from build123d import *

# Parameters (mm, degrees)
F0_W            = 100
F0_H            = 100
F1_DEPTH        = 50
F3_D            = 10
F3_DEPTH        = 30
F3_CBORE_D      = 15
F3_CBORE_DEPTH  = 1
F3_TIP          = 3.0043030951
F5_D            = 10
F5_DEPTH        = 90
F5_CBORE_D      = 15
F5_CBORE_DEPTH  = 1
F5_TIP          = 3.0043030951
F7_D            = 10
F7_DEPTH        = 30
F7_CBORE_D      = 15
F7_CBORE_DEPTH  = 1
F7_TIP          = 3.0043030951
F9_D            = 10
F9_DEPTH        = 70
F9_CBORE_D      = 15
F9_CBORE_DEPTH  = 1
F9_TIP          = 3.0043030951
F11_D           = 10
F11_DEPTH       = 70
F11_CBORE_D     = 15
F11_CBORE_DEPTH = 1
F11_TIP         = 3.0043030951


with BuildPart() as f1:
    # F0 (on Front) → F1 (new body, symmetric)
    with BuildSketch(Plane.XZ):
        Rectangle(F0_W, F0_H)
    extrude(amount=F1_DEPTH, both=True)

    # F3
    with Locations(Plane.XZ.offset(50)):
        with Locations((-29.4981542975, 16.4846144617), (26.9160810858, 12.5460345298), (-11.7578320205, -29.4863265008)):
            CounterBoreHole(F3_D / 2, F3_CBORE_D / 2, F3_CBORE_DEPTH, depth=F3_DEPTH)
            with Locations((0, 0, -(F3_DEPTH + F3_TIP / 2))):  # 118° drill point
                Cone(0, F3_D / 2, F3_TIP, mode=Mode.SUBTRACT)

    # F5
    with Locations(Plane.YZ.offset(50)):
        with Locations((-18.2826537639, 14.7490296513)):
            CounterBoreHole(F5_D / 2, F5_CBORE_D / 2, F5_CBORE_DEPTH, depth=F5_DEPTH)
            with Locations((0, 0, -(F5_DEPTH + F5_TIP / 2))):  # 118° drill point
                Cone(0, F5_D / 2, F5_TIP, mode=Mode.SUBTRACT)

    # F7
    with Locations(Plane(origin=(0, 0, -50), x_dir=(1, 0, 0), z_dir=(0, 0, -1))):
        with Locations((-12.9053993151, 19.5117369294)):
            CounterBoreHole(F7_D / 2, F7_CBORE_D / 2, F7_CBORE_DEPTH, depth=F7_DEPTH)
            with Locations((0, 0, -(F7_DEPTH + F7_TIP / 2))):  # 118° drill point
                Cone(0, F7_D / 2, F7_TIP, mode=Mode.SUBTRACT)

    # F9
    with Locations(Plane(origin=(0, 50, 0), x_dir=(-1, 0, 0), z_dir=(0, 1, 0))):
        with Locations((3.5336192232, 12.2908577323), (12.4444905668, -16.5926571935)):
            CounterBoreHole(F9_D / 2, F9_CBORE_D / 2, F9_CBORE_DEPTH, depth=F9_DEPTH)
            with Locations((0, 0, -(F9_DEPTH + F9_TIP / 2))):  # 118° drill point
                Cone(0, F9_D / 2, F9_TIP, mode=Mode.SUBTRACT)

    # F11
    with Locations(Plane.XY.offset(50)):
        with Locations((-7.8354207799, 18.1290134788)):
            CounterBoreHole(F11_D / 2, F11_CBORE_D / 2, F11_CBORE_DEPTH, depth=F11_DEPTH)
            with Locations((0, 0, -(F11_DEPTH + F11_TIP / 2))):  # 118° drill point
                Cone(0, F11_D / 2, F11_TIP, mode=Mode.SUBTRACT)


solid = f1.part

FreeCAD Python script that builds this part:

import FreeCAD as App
import Part
import Sketcher
Q = App.Units.Quantity

doc = App.newDocument("Part")
body = doc.addObject("PartDesign::Body", "Body")

# Sketch on XZ plane
sketch1 = doc.addObject("Sketcher::SketchObject", "Sketch")
body.addObject(sketch1)
sketch1.AttachmentSupport = (doc.XZ_Plane, [""])
sketch1.MapMode = "FlatFace"
sketch1.addGeometry([
    Part.LineSegment(App.Vector(-50, 50, 0), App.Vector(-50, -50, 0)),
    Part.LineSegment(App.Vector(-50, -50, 0), App.Vector(50, -50, 0)),
    Part.LineSegment(App.Vector(50, -50, 0), App.Vector(50, 50, 0)),
    Part.LineSegment(App.Vector(50, 50, 0), App.Vector(-50, 50, 0)),
], False)
sketch1.addConstraint([
    Sketcher.Constraint("Coincident", 0, 2, 1, 1),
    Sketcher.Constraint("Coincident", 1, 2, 2, 1),
    Sketcher.Constraint("Coincident", 2, 2, 3, 1),
    Sketcher.Constraint("Coincident", 3, 2, 0, 1),
    Sketcher.Constraint("Vertical", 0),
    Sketcher.Constraint("Horizontal", 1),
    Sketcher.Constraint("Vertical", 2),
    Sketcher.Constraint("Horizontal", 3),
    Sketcher.Constraint("Symmetric", 0, 2, 2, 2, -1, 1),
    Sketcher.Constraint("Equal", 3, 0),
    Sketcher.Constraint("DistanceX", 1, 1, 1, 2, Q("100 mm")),
])
pad1 = doc.addObject("PartDesign::Pad", "Pad")
body.addObject(pad1)
pad1.Profile = sketch1
pad1.Length = 100
pad1.Midplane = True

# Sketch on XZ plane
sketch2 = doc.addObject("Sketcher::SketchObject", "Sketch001")
body.addObject(sketch2)
sketch2.AttachmentSupport = (doc.XZ_Plane, [""])
sketch2.MapMode = "FlatFace"
sketch2.AttachmentOffset = App.Placement(App.Vector(0, 0, 50), App.Rotation())
sketch2.addGeometry([
    Part.Circle(App.Vector(-29, 16, 0), App.Vector(0, 0, 1), 5),
    Part.Circle(App.Vector(27, 13, 0), App.Vector(0, 0, 1), 5),
    Part.Circle(App.Vector(-12, -29, 0), App.Vector(0, 0, 1), 5),
], False)
sketch2.addConstraint([
    Sketcher.Constraint("Equal", 0, 1),
    Sketcher.Constraint("Equal", 1, 2),
    Sketcher.Constraint("Diameter", 0, Q("10 mm")),
    Sketcher.Constraint("DistanceX", -1, 1, 1, 3, Q("26.916081 mm")),
    Sketcher.Constraint("DistanceY", 1, 3, 0, 3, Q("3.93858 mm")),
    Sketcher.Constraint("DistanceY", 2, 3, 0, 3, Q("45.970941 mm")),
    Sketcher.Constraint("DistanceX", 0, 3, -1, 1, Q("29.498154 mm")),
    Sketcher.Constraint("DistanceY", -1, 1, 0, 3, Q("16.484614 mm")),
    Sketcher.Constraint("DistanceX", 2, 3, -1, 1, Q("11.757832 mm")),
])
doc.recompute()
hole = doc.addObject("PartDesign::Hole", "Hole")
body.addObject(hole)
hole.Profile = sketch2
hole.ThreadType = "None"
hole.Diameter = 10
hole.DepthType = "Dimension"
hole.Depth = 30
hole.DrillPoint = "Angled"
hole.DrillPointAngle = 118
hole.HoleCutType = "Counterbore"
hole.HoleCutDiameter = 15
hole.HoleCutDepth = 1

# Sketch on YZ plane
sketch3 = doc.addObject("Sketcher::SketchObject", "Sketch002")
body.addObject(sketch3)
sketch3.AttachmentSupport = (doc.YZ_Plane, [""])
sketch3.MapMode = "FlatFace"
sketch3.AttachmentOffset = App.Placement(App.Vector(0, 0, 50), App.Rotation())
sketch3.addGeometry(Part.Circle(App.Vector(-18, 15, 0), App.Vector(0, 0, 1), 5), False)
sketch3.addConstraint([
    Sketcher.Constraint("Diameter", 0, Q("10 mm")),
    Sketcher.Constraint("DistanceY", -1, 1, 0, 3, Q("14.74903 mm")),
    Sketcher.Constraint("DistanceX", 0, 3, -1, 1, Q("18.282654 mm")),
])
doc.recompute()
hole2 = doc.addObject("PartDesign::Hole", "Hole001")
body.addObject(hole2)
hole2.Profile = sketch3
hole2.ThreadType = "None"
hole2.Diameter = 10
hole2.DepthType = "Dimension"
hole2.Depth = 90
hole2.DrillPoint = "Angled"
hole2.DrillPointAngle = 118
hole2.HoleCutType = "Counterbore"
hole2.HoleCutDiameter = 15
hole2.HoleCutDepth = 1

# Sketch on XY plane
sketch4 = doc.addObject("Sketcher::SketchObject", "Sketch003")
body.addObject(sketch4)
sketch4.AttachmentSupport = (doc.XY_Plane, [""])
sketch4.MapMode = "FlatFace"
sketch4.AttachmentOffset = App.Placement(App.Vector(0, 0, -50), App.Rotation())
sketch4.addGeometry(Part.Circle(App.Vector(-13, -20, 0), App.Vector(0, 0, 1), 5), False)
sketch4.addConstraint([
    Sketcher.Constraint("Diameter", 0, Q("10 mm")),
    Sketcher.Constraint("DistanceX", 0, 3, -1, 1, Q("12.905399 mm")),
    Sketcher.Constraint("DistanceY", 0, 3, -1, 1, Q("19.511737 mm")),
])
doc.recompute()
hole3 = doc.addObject("PartDesign::Hole", "Hole002")
body.addObject(hole3)
hole3.Profile = sketch4
hole3.ThreadType = "None"
hole3.Diameter = 10
hole3.DepthType = "Dimension"
hole3.Depth = 30
hole3.DrillPoint = "Angled"
hole3.DrillPointAngle = 118
hole3.HoleCutType = "Counterbore"
hole3.HoleCutDiameter = 15
hole3.HoleCutDepth = 1
hole3.Reversed = True

# Sketch on XZ plane
sketch5 = doc.addObject("Sketcher::SketchObject", "Sketch004")
body.addObject(sketch5)
sketch5.AttachmentSupport = (doc.XZ_Plane, [""])
sketch5.MapMode = "FlatFace"
sketch5.AttachmentOffset = App.Placement(App.Vector(0, 0, -50), App.Rotation())
sketch5.addGeometry([
    Part.Circle(App.Vector(-4, 12, 0), App.Vector(0, 0, 1), 5),
    Part.Circle(App.Vector(-12, -17, 0), App.Vector(0, 0, 1), 5),
], False)
sketch5.addConstraint([
    Sketcher.Constraint("Equal", 0, 1),
    Sketcher.Constraint("Diameter", 0, Q("10 mm")),
    Sketcher.Constraint("DistanceX", 0, 3, -1, 1, Q("3.533619 mm")),
    Sketcher.Constraint("DistanceX", 1, 3, -1, 1, Q("12.444491 mm")),
    Sketcher.Constraint("DistanceY", -1, 1, 0, 3, Q("12.290858 mm")),
    Sketcher.Constraint("DistanceY", 1, 3, -1, 1, Q("16.592657 mm")),
])
doc.recompute()
hole4 = doc.addObject("PartDesign::Hole", "Hole003")
body.addObject(hole4)
hole4.Profile = sketch5
hole4.ThreadType = "None"
hole4.Diameter = 10
hole4.DepthType = "Dimension"
hole4.Depth = 70
hole4.DrillPoint = "Angled"
hole4.DrillPointAngle = 118
hole4.HoleCutType = "Counterbore"
hole4.HoleCutDiameter = 15
hole4.HoleCutDepth = 1
hole4.Reversed = True

# Sketch on XY plane
sketch6 = doc.addObject("Sketcher::SketchObject", "Sketch005")
body.addObject(sketch6)
sketch6.AttachmentSupport = (doc.XY_Plane, [""])
sketch6.MapMode = "FlatFace"
sketch6.AttachmentOffset = App.Placement(App.Vector(0, 0, 50), App.Rotation())
sketch6.addGeometry(Part.Circle(App.Vector(-8, 18, 0), App.Vector(0, 0, 1), 5), False)
sketch6.addConstraint([
    Sketcher.Constraint("Diameter", 0, Q("10 mm")),
    Sketcher.Constraint("DistanceX", 0, 3, -1, 1, Q("7.835421 mm")),
    Sketcher.Constraint("DistanceY", -1, 1, 0, 3, Q("18.129013 mm")),
])
doc.recompute()
hole5 = doc.addObject("PartDesign::Hole", "Hole004")
body.addObject(hole5)
hole5.Profile = sketch6
hole5.ThreadType = "None"
hole5.Diameter = 10
hole5.DepthType = "Dimension"
hole5.Depth = 70
hole5.DrillPoint = "Angled"
hole5.DrillPointAngle = 118
hole5.HoleCutType = "Counterbore"
hole5.HoleCutDiameter = 15
hole5.HoleCutDepth = 1

doc.recompute()
